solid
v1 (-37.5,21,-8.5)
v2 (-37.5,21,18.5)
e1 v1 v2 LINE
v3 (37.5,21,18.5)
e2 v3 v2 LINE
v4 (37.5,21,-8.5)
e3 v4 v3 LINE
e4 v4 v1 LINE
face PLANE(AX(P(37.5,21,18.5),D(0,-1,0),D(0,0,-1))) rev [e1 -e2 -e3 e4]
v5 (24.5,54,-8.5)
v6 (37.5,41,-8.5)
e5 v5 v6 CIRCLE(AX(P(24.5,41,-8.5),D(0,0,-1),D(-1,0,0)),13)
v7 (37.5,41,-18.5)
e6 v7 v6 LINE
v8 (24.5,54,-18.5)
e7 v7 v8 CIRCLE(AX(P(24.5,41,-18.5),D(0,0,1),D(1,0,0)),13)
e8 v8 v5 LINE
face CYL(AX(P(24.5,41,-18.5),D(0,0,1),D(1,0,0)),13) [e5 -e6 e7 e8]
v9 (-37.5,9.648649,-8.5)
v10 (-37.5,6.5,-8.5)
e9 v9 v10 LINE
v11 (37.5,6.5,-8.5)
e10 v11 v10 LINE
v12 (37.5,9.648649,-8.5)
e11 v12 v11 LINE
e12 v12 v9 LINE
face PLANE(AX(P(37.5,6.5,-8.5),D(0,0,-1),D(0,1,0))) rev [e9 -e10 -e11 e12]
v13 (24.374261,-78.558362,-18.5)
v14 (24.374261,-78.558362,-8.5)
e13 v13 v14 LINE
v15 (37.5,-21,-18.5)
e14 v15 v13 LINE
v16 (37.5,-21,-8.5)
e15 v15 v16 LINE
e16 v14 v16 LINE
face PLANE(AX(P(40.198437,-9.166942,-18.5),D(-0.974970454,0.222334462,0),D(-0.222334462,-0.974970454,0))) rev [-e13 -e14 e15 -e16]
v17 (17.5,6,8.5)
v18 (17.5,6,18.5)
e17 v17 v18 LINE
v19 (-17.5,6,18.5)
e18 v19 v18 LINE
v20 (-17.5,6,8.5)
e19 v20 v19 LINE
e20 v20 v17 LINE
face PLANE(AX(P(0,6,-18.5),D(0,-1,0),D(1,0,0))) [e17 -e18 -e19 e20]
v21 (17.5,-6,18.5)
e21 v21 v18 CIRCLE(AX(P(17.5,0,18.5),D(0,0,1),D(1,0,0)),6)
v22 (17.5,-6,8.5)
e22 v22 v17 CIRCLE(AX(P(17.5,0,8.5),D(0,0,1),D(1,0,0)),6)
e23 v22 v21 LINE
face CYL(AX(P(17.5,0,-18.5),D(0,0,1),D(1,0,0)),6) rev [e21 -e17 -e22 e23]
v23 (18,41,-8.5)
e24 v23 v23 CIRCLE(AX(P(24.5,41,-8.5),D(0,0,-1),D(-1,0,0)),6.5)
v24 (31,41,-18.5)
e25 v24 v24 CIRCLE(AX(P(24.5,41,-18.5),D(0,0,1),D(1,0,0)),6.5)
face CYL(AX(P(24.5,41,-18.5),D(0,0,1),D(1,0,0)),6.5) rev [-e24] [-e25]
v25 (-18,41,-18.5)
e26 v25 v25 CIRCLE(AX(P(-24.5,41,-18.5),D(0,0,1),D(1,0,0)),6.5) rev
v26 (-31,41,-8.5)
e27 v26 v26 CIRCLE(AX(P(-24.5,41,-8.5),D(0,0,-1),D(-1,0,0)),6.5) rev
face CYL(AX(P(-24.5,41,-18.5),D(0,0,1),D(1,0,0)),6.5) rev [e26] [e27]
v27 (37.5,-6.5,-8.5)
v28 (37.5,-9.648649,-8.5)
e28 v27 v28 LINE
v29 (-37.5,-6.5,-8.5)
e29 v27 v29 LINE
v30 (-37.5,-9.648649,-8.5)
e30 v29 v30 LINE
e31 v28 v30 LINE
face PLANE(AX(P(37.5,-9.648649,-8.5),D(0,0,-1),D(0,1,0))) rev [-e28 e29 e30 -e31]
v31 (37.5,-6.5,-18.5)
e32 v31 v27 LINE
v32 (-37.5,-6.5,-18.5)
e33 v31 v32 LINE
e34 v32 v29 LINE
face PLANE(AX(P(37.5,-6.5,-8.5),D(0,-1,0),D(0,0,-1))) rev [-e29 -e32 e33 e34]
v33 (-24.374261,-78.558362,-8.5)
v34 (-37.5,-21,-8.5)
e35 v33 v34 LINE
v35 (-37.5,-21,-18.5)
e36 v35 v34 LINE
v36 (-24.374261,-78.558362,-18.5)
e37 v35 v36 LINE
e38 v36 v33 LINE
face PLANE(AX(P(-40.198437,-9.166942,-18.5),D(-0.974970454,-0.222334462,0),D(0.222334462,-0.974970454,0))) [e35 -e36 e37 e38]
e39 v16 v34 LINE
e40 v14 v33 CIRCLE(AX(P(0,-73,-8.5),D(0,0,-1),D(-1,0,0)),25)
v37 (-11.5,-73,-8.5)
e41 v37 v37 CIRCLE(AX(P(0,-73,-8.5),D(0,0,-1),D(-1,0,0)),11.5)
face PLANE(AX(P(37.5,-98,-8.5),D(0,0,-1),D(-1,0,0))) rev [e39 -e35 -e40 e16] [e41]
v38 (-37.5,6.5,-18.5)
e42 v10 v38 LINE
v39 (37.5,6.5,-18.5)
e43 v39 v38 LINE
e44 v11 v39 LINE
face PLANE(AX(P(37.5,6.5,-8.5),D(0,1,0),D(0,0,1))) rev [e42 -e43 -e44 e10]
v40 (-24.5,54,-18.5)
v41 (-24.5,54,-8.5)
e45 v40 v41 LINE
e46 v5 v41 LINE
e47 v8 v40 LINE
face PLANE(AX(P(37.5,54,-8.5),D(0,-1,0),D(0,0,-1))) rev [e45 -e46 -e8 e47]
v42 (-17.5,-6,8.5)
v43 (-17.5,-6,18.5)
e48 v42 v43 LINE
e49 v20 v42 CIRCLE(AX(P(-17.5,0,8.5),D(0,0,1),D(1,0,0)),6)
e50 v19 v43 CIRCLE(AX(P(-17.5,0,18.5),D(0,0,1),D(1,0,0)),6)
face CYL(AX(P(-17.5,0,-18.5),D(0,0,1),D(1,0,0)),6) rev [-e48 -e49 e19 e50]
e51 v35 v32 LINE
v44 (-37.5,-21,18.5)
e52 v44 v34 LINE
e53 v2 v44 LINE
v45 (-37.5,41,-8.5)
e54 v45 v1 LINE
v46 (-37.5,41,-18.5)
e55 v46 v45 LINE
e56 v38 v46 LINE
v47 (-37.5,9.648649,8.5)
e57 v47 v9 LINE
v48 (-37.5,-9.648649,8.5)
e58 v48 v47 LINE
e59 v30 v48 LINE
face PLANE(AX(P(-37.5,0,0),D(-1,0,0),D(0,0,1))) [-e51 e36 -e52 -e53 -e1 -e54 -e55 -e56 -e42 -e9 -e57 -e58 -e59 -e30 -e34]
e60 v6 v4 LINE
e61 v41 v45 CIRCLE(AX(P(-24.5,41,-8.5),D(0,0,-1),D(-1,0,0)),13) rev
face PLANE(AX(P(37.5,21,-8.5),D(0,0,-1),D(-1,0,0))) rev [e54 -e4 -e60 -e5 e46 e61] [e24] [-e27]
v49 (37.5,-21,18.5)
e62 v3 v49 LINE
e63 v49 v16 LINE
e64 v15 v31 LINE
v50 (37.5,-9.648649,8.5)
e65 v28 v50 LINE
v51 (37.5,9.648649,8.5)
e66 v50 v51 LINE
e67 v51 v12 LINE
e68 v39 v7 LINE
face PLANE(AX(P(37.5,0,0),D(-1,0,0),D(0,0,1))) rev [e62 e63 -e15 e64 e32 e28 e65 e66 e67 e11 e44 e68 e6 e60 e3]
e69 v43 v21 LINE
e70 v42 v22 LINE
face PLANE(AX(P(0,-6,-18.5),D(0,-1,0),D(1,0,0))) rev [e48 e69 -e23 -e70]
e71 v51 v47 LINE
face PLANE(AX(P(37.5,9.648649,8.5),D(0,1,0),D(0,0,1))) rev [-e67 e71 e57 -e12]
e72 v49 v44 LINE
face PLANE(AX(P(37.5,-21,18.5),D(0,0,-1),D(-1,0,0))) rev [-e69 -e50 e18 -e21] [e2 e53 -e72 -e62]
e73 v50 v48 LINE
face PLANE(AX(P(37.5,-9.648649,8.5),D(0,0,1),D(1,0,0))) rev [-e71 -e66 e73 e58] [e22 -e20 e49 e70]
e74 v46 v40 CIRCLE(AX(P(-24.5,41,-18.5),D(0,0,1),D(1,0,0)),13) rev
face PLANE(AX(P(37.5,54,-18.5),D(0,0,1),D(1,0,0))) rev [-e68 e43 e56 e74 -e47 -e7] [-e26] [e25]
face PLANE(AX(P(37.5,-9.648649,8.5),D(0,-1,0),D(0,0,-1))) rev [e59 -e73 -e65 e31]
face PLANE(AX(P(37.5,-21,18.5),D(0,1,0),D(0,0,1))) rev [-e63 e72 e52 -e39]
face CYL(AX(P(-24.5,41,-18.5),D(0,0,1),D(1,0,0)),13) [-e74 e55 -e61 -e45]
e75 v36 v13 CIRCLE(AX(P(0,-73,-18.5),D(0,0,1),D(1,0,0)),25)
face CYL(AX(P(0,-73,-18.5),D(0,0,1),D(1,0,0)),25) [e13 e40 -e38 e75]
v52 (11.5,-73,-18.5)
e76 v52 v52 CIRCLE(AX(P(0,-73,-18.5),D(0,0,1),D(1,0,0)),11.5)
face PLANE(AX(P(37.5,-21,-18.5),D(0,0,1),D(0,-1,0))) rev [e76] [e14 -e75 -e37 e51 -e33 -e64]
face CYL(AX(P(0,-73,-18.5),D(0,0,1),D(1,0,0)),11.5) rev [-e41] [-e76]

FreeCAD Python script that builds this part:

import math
import FreeCAD as App
import Part
import Sketcher

V = App.Vector

doc = App.newDocument("Part")
body = doc.addObject("PartDesign::Body", "Body")

sketch1 = body.newObject("Sketcher::SketchObject", "Sketch")
sketch1.AttachmentSupport = (doc.getObject("YZ_Plane"), [""])
sketch1.MapMode = "FlatFace"
sketch1.addGeometry([
    Part.LineSegment(V(54, -8.5, 0), V(21, -8.5, 0)),
    Part.LineSegment(V(21, -8.5, 0), V(21, 18.5, 0)),
    Part.LineSegment(V(21, 18.5, 0), V(-21, 18.5, 0)),
    Part.LineSegment(V(-21, 18.5, 0), V(-21, -8.5, 0)),
    Part.LineSegment(V(-21, -8.5, 0), V(-98, -8.5, 0)),
    Part.LineSegment(V(-98, -8.5, 0), V(-98, -18.5, 0)),
    Part.LineSegment(V(-98, -18.5, 0), V(-6.5, -18.5, 0)),
    Part.LineSegment(V(-6.5, -18.5, 0), V(-6.5, -8.5, 0)),
    Part.LineSegment(V(-6.5, -8.5, 0), V(-9.6, -8.5, 0)),
    Part.LineSegment(V(-9.6, -8.5, 0), V(-9.6, 8.5, 0)),
    Part.LineSegment(V(-9.6, 8.5, 0), V(9.6, 8.5, 0)),
    Part.LineSegment(V(9.6, 8.5, 0), V(9.6, -8.5, 0)),
    Part.LineSegment(V(9.6, -8.5, 0), V(6.5, -8.5, 0)),
    Part.LineSegment(V(6.5, -8.5, 0), V(6.5, -18.5, 0)),
    Part.LineSegment(V(6.5, -18.5, 0), V(54, -18.5, 0)),
    Part.LineSegment(V(54, -18.5, 0), V(54, -8.5, 0)),
], False)
sketch1.addConstraint([
    Sketcher.Constraint("Coincident", 0, 2, 1, 1),
    Sketcher.Constraint("Coincident", 1, 2, 2, 1),
    Sketcher.Constraint("Coincident", 2, 2, 3, 1),
    Sketcher.Constraint("Coincident", 3, 2, 4, 1),
    Sketcher.Constraint("Coincident", 4, 2, 5, 1),
    Sketcher.Constraint("Coincident", 5, 2, 6, 1),
    Sketcher.Constraint("Coincident", 6, 2, 7, 1),
    Sketcher.Constraint("Coincident", 7, 2, 8, 1),
    Sketcher.Constraint("Coincident", 8, 2, 9, 1),
    Sketcher.Constraint("Coincident", 9, 2, 10, 1),
    Sketcher.Constraint("Coincident", 10, 2, 11, 1),
    Sketcher.Constraint("Coincident", 11, 2, 12, 1),
    Sketcher.Constraint("Coincident", 12, 2, 13, 1),
    Sketcher.Constraint("Coincident", 13, 2, 14, 1),
    Sketcher.Constraint("Coincident", 14, 2, 15, 1),
    Sketcher.Constraint("Coincident", 15, 2, 0, 1),
    Sketcher.Constraint("Horizontal", 0),
    Sketcher.Constraint("Vertical", 1),
    Sketcher.Constraint("Horizontal", 2),
    Sketcher.Constraint("Vertical", 3),
    Sketcher.Constraint("Horizontal", 4),
    Sketcher.Constraint("Vertical", 5),
    Sketcher.Constraint("Horizontal", 6),
    Sketcher.Constraint("Vertical", 7),
    Sketcher.Constraint("Horizontal", 8),
    Sketcher.Constraint("Vertical", 9),
    Sketcher.Constraint("Horizontal", 10),
    Sketcher.Constraint("Vertical", 11),
    Sketcher.Constraint("Horizontal", 12),
    Sketcher.Constraint("Vertical", 13),
    Sketcher.Constraint("Horizontal", 14),
    Sketcher.Constraint("Vertical", 15),
    Sketcher.Constraint("Symmetric", 8, 2, 10, 2, -1, 1),
    Sketcher.Constraint("Symmetric", 0, 2, 3, 2, -2),
    Sketcher.Constraint("Symmetric", 7, 2, 12, 2, -2),
    Sketcher.Constraint("Horizontal", 4, 2, 7, 2),
    Sketcher.Constraint("Horizontal", 6, 2, 13, 2),
    Sketcher.Constraint("DistanceX", 0, 2, 0, 1, 33.0),
    Sketcher.Constraint("DistanceX", 2, 2, 2, 1, 42.0),
    Sketcher.Constraint("DistanceX", 4, 2, 4, 1, 77.0),
    Sketcher.Constraint("DistanceY", 1, 1, 1, 2, 27.0),
    Sketcher.Constraint("DistanceY", 5, 2, 5, 1, 10.0),
    Sketcher.Constraint("DistanceY", 9, 1, 9, 2, 17.0),
    Sketcher.Constraint("DistanceX", 6, 1, 6, 2, 91.5),
    Sketcher.Constraint("DistanceX", 8, 2, 8, 1, 3.148649),
])
pad1 = body.newObject("PartDesign::Pad", "Pad")
pad1.Profile = sketch1
pad1.Length = 75
pad1.Midplane = True

sketch2 = body.newObject("Sketcher::SketchObject", "Sketch001")
sketch2.AttachmentSupport = (doc.getObject("XY_Plane"), [""])
sketch2.MapMode = "FlatFace"
sketch2.addGeometry([
    Part.LineSegment(V(38, -98, 0), V(38, -21, 0)),
    Part.LineSegment(V(38, -21, 0), V(24, -79, 0)),
    Part.ArcOfCircle(Part.Circle(V(0, -73, 0), V(0, 0, 1), 25), math.radians(-90), math.radians(-13)),
    Part.LineSegment(V(0, -98, 0), V(38, -98, 0)),
    Part.Circle(V(0, -73, 0), V(0, 0, 1), 12),
    Part.LineSegment(V(-38, -98, 0), V(0, -98, 0)),
    Part.ArcOfCircle(Part.Circle(V(0, -73, 0), V(0, 0, 1), 25), math.radians(-167), math.radians(-90)),
    Part.LineSegment(V(-24, -79, 0), V(-38, -21, 0)),
    Part.LineSegment(V(-38, -21, 0), V(-38, -98, 0)),
    Part.LineSegment(V(-18, -6, 0), V(18, -6, 0)),
    Part.ArcOfCircle(Part.Circle(V(18, 0, 0), V(0, 0, 1), 6), math.radians(-90), math.radians(90)),
    Part.LineSegment(V(18, 6, 0), V(-18, 6, 0)),
    Part.ArcOfCircle(Part.Circle(V(-18, 0, 0), V(0, 0, 1), 6), math.radians(90), math.radians(270)),
    Part.Circle(V(24, 41, 0), V(0, 0, 1), 6),
    Part.Circle(V(-24, 41, 0), V(0, 0, 1), 6),
    Part.LineSegment(V(38, 54, 0), V(24, 54, 0)),
    Part.ArcOfCircle(Part.Circle(V(24, 41, 0), V(0, 0, 1), 13), math.radians(0), math.radians(90)),
    Part.LineSegment(V(38, 41, 0), V(38, 54, 0)),
    Part.LineSegment(V(-38, 54, 0), V(-38, 41, 0)),
    Part.ArcOfCircle(Part.Circle(V(-24, 41, 0), V(0, 0, 1), 13), math.radians(90), math.radians(180)),
    Part.LineSegment(V(-24, 54, 0), V(-38, 54, 0)),
], False)
sketch2.addConstraint([
    Sketcher.Constraint("Coincident", 0, 2, 1, 1),
    Sketcher.Constraint("Tangent", 1, 2, 2, 2),
    Sketcher.Constraint("Tangent", 2, 1, 3, 1),
    Sketcher.Constraint("Coincident", 3, 2, 0, 1),
    Sketcher.Constraint("Tangent", 5, 2, 6, 2),
    Sketcher.Constraint("Tangent", 6, 1, 7, 1),
    Sketcher.Constraint("Coincident", 7, 2, 8, 1),
    Sketcher.Constraint("Coincident", 8, 2, 5, 1),
    Sketcher.Constraint("Tangent", 9, 2, 10, 1),
    Sketcher.Constraint("Tangent", 10, 2, 11, 1),
    Sketcher.Constraint("Tangent", 11, 2, 12, 1),
    Sketcher.Constraint("Tangent", 12, 2, 9, 1),
    Sketcher.Constraint("Tangent", 15, 2, 16, 2),
    Sketcher.Constraint("Tangent", 16, 1, 17, 1),
    Sketcher.Constraint("Coincident", 17, 2, 15, 1),
    Sketcher.Constraint("Tangent", 18, 2, 19, 2),
    Sketcher.Constraint("Tangent", 19, 1, 20, 1),
    Sketcher.Constraint("Coincident", 20, 2, 18, 1),
    Sketcher.Constraint("Vertical", 0),
    Sketcher.Constraint("Horizontal", 3),
    Sketcher.Constraint("Horizontal", 5),
    Sketcher.Constraint("Vertical", 8),
    Sketcher.Constraint("Horizontal", 9),
    Sketcher.Constraint("Horizontal", 11),
    Sketcher.Constraint("Horizontal", 15),
    Sketcher.Constraint("Vertical", 17),
    Sketcher.Constraint("Vertical", 18),
    Sketcher.Constraint("Horizontal", 20),
    Sketcher.Constraint("Coincident", 4, 3, 2, 3),
    Sketcher.Constraint("Coincident", 6, 3, 2, 3),
    Sketcher.Constraint("Coincident", 16, 3, 13, 3),
    Sketcher.Constraint("Coincident", 19, 3, 14, 3),
    Sketcher.Constraint("Equal", 2, 6),
    Sketcher.Constraint("Equal", 13, 14),
    Sketcher.Constraint("Equal", 16, 19),
    Sketcher.Constraint("Symmetric", 10, 3, 12, 3, -1, 1),
    Sketcher.Constraint("Symmetric", 13, 3, 14, 3, -2),
    Sketcher.Constraint("Symmetric", 1, 2, 6, 1, -2),
    Sketcher.Constraint("Horizontal", 0, 2, 7, 2),
    Sketcher.Constraint("Vertical", 3, 2, 16, 1),
    Sketcher.Constraint("Diameter", 4, 23.0),
    Sketcher.Constraint("Diameter", 13, 13.0),
    Sketcher.Constraint("Radius", 2, 25.0),
    Sketcher.Constraint("Radius", 10, 6.0),
    Sketcher.Constraint("Radius", 16, 13.0),
    Sketcher.Constraint("DistanceX", 9, 1, 9, 2, 35.0),
    Sketcher.Constraint("DistanceY", 0, 1, 0, 2, 77.0),
    Sketcher.Constraint("DistanceX", 3, 1, 3, 2, 37.5),
    Sketcher.Constraint("DistanceY", 2, 3, -1, 1, 73.0),
    Sketcher.Constraint("DistanceY", -1, 1, 13, 3, 41.0),
])
pocket1 = body.newObject("PartDesign::Pocket", "Pocket")
pocket1.Profile = sketch2
pocket1.Type = "ThroughAll"
pocket1.Midplane = True

doc.recompute()
